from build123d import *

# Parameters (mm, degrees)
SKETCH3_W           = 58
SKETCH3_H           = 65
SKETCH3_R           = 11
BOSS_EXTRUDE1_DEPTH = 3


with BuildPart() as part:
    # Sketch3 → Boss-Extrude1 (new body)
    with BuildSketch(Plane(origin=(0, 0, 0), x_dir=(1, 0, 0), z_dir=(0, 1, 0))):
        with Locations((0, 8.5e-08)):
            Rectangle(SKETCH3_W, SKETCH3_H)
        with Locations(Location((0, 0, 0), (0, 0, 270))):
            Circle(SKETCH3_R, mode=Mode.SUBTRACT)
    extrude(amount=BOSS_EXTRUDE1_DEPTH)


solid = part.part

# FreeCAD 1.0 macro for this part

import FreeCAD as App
import Part
import Sketcher

V = App.Vector
Q = App.Units.Quantity


def add_polygon(sketch, points):
    """Adds a closed chain of lines whose ends are joined by coincident constraints."""
    first, n = sketch.GeometryCount, len(points)
    for a, b in zip(points, points[1:] + points[:1]):
        sketch.addGeometry(Part.LineSegment(App.Vector(*a, 0), App.Vector(*b, 0)), False)
    for i in range(n):
        sketch.addConstraint(Sketcher.Constraint("Coincident", first + i, 2, first + (i + 1) % n, 1))

doc = App.newDocument("Part")
body = doc.addObject("PartDesign::Body", "Body")

# Sketch on XZ plane
sketch1 = body.newObject("Sketcher::SketchObject", "Sketch")
sketch1.AttachmentSupport = (doc.getObject("XZ_Plane"), [""])
sketch1.MapMode = "FlatFace"
add_polygon(sketch1, [(-29, -32), (-29, 32), (29, 32), (29, -32)])  # lines 0-3
sketch1.addGeometry(Part.Circle(V(0, 0, 0), V(0, 0, 1), 11), False)  # 4
sketch1.addConstraint([
    Sketcher.Constraint("Vertical", 0),
    Sketcher.Constraint("Horizontal", 1),
    Sketcher.Constraint("Vertical", 2),
    Sketcher.Constraint("Horizontal", 3),
    Sketcher.Constraint("Coincident", 4, 3, -1, 1),
    Sketcher.Constraint("Symmetric", 0, 2, 2, 2, -1, 1),
    Sketcher.Constraint("Diameter", 4, Q("22 mm")),
    Sketcher.Constraint("DistanceX", 1, 1, 1, 2, Q("58 mm")),
    Sketcher.Constraint("DistanceY", 0, 1, 0, 2, Q("65 mm")),
])
pad1 = body.newObject("PartDesign::Pad", "Pad")
pad1.Profile = sketch1
pad1.Length = 3
pad1.Reversed = True

doc.recompute()
